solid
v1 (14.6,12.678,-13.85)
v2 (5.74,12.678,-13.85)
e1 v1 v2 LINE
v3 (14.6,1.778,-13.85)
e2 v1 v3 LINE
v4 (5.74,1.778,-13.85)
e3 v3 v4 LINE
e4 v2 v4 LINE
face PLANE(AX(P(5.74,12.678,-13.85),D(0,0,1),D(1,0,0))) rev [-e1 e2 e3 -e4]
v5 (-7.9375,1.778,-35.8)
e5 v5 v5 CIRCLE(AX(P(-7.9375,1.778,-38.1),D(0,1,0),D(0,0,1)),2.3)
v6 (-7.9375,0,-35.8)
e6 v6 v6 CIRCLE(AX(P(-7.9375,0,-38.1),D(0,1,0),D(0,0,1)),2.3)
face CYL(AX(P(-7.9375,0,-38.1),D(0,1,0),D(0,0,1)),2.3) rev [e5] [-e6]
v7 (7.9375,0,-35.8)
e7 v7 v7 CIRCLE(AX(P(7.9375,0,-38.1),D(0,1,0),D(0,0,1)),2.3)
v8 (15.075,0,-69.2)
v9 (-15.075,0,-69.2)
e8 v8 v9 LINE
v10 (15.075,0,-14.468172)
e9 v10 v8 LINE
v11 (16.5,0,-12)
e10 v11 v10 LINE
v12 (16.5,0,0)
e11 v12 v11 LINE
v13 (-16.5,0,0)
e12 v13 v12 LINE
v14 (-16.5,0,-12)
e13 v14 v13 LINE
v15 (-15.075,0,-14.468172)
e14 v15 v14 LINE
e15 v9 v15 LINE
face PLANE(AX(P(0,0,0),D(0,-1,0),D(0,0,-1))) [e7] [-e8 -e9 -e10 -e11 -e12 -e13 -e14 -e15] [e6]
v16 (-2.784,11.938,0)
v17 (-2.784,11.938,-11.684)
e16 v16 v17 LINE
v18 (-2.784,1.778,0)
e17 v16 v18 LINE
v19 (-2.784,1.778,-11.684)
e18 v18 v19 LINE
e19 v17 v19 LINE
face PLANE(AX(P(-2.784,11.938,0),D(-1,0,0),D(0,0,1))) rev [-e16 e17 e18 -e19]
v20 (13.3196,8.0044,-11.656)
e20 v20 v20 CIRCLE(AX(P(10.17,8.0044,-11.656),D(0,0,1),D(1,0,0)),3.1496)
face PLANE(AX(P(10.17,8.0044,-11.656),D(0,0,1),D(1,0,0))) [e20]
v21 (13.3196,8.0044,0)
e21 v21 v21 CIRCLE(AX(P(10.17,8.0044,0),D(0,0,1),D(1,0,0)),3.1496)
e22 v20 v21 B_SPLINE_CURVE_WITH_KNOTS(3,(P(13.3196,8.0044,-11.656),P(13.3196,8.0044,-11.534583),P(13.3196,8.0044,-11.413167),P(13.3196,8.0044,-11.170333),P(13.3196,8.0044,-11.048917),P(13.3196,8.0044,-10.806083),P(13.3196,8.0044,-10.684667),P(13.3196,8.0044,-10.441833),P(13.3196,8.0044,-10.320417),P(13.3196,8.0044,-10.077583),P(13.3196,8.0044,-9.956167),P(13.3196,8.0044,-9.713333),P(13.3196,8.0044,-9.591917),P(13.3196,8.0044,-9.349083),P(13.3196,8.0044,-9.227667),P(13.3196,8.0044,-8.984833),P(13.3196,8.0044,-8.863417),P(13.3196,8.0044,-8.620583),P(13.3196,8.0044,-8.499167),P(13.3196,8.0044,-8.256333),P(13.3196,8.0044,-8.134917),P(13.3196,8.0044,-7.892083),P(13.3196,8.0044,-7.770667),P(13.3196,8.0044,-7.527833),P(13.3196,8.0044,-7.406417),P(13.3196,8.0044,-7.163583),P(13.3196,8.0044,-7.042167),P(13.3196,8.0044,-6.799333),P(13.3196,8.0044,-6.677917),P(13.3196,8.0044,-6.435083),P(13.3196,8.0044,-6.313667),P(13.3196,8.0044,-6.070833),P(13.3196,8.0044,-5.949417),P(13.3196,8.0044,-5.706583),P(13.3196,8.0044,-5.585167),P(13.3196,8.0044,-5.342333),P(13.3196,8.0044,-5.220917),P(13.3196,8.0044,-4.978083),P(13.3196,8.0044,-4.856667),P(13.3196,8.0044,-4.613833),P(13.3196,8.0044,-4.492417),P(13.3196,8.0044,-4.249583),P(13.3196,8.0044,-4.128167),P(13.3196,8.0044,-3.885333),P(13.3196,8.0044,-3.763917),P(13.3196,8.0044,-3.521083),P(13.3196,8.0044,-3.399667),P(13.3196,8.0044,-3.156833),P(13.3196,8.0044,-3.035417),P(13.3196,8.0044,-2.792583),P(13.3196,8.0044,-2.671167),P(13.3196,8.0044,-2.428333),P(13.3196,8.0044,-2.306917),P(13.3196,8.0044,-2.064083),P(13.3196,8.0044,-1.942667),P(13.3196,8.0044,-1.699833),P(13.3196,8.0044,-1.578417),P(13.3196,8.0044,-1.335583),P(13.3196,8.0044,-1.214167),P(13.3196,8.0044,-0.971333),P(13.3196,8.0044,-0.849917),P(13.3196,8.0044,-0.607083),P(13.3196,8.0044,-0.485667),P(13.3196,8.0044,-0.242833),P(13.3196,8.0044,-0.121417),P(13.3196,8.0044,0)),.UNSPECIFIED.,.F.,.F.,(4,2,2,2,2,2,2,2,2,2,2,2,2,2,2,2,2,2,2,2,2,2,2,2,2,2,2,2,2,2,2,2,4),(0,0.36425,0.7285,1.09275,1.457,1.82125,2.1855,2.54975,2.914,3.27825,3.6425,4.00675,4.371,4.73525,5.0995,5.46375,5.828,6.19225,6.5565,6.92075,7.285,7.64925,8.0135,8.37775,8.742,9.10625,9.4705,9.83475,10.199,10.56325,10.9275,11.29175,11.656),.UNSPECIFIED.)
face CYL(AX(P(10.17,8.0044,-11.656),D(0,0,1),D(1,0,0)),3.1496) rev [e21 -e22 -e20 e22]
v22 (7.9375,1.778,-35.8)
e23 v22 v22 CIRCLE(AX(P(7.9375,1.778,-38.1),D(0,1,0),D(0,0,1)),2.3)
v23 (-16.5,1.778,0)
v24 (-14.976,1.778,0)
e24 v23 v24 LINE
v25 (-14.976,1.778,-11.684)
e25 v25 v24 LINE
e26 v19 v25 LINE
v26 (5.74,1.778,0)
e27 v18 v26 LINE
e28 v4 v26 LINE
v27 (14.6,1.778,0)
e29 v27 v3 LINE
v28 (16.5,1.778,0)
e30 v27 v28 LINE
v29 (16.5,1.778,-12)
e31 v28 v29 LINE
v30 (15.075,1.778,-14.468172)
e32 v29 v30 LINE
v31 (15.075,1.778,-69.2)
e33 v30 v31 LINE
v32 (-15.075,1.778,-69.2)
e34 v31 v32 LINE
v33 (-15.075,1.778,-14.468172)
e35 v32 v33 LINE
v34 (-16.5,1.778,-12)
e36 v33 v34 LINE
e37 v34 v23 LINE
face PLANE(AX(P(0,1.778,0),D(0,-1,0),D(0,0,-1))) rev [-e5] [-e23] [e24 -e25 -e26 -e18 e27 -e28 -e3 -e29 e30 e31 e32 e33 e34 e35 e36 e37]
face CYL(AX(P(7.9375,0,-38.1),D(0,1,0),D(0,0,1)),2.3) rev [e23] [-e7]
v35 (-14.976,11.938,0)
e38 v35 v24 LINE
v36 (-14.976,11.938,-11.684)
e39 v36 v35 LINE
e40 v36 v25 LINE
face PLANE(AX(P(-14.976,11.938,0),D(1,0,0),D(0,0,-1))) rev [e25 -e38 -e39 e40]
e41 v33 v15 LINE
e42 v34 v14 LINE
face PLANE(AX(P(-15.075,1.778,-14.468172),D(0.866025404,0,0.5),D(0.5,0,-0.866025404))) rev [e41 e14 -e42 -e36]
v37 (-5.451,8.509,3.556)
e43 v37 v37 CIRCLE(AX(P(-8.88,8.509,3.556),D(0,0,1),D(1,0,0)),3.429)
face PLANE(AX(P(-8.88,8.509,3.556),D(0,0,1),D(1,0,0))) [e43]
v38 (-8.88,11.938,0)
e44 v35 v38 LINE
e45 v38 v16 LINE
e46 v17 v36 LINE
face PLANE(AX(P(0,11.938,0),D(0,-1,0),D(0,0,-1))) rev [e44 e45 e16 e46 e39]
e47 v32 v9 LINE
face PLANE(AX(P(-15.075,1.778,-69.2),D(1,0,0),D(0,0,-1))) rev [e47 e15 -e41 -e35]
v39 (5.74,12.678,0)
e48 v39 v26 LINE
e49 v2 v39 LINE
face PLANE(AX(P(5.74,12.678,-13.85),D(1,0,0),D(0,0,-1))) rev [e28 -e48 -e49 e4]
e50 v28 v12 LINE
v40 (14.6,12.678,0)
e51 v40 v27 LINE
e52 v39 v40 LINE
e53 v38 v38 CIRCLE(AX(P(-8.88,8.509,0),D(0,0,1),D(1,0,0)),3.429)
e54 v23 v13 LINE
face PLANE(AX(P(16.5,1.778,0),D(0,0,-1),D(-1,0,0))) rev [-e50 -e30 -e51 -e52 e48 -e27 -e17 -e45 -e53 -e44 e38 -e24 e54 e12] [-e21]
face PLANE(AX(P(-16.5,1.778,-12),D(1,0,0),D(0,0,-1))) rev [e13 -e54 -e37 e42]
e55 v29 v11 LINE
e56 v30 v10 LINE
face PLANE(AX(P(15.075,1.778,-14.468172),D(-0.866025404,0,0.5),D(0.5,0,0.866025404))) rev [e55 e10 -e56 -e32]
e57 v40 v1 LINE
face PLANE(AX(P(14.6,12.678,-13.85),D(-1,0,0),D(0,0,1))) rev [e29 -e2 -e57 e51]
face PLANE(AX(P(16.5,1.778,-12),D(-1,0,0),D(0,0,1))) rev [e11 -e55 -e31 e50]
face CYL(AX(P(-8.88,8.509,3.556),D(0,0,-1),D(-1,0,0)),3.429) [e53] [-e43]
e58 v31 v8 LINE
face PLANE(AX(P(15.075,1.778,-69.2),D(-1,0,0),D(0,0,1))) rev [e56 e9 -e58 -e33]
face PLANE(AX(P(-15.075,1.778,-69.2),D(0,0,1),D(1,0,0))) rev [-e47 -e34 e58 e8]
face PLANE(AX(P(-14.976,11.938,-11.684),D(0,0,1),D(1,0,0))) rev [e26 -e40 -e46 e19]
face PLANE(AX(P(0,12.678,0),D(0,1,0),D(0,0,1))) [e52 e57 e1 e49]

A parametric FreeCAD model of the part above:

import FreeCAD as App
import Part
import Sketcher
from FreeCAD import Vector
Q = App.Units.Quantity


def add_polygon(sketch, points):
    """Adds a closed chain of lines whose ends are joined by coincident constraints."""
    first, n = sketch.GeometryCount, len(points)
    for a, b in zip(points, points[1:] + points[:1]):
        sketch.addGeometry(Part.LineSegment(App.Vector(*a, 0), App.Vector(*b, 0)), False)
    for i in range(n):
        sketch.addConstraint(Sketcher.Constraint("Coincident", first + i, 2, first + (i + 1) % n, 1))

doc = App.newDocument("Part")
body = doc.addObject("PartDesign::Body", "Body")

# Sketch on XZ plane
sketch1 = body.newObject("Sketcher::SketchObject", "Sketch")
sketch1.AttachmentSupport = (doc.getObject("XZ_Plane"), [""])
sketch1.MapMode = "FlatFace"
add_polygon(sketch1, [(15.075, -69.2), (-15.075, -69.2), (-15.075, -14.468172), (-16.5, -12), (-16.5, 0), (16.5, 0), (16.5, -12), (15.075, -14.468172)])  # lines 0-7
sketch1.addConstraint([
    Sketcher.Constraint("Horizontal", 0),
    Sketcher.Constraint("Vertical", 1),
    Sketcher.Constraint("Vertical", 3),
    Sketcher.Constraint("Horizontal", 4),
    Sketcher.Constraint("Vertical", 5),
    Sketcher.Constraint("Vertical", 7),
    Sketcher.Constraint("Symmetric", 3, 2, 4, 2, -1, 1),
    Sketcher.Constraint("Symmetric", 1, 2, 6, 2, -2),
    Sketcher.Constraint("Horizontal", 2, 2, 5, 2),
    Sketcher.Constraint("Angle", 2, Q("120 deg")),
    Sketcher.Constraint("DistanceX", 0, 2, 0, 1, 30.15),
    Sketcher.Constraint("DistanceX", 4, 1, 4, 2, 33.0),
    Sketcher.Constraint("DistanceY", 3, 1, 3, 2, 12.0),
    Sketcher.Constraint("DistanceY", 0, 2, -1, 1, 69.2),
])
pad1 = body.newObject("PartDesign::Pad", "Pad")
pad1.Profile = sketch1
pad1.Length = Q("0.07 in")
pad1.Reversed = True

# Sketch on XZ plane
sketch2 = body.newObject("Sketcher::SketchObject", "Sketch001")
sketch2.AttachmentSupport = (doc.getObject("XZ_Plane"), [""])
sketch2.MapMode = "FlatFace"
sketch2.AttachmentOffset = App.Placement(Vector(0, 0, -0.07 * 25.4), App.Rotation())
add_polygon(sketch2, [(5.74, -13.85), (5.74, 0), (14.6, 0), (14.6, -13.85)])  # lines 0-3
sketch2.addConstraint([
    Sketcher.Constraint("Vertical", 0),
    Sketcher.Constraint("Horizontal", 1),
    Sketcher.Constraint("Vertical", 2),
    Sketcher.Constraint("Horizontal", 3),
    Sketcher.Constraint("PointOnObject", 0, 2, -1),
    Sketcher.Constraint("DistanceX", 1, 1, 1, 2, 8.86),
    Sketcher.Constraint("DistanceY", 0, 1, 0, 2, 13.85),
    Sketcher.Constraint("DistanceX", -1, 1, 0, 2, 5.74),
])
pad2 = body.newObject("PartDesign::Pad", "Pad001")
pad2.Profile = sketch2
pad2.Length = 10.9
pad2.Reversed = True

# Sketch on XZ plane
sketch3 = body.newObject("Sketcher::SketchObject", "Sketch002")
sketch3.AttachmentSupport = (doc.getObject("XZ_Plane"), [""])
sketch3.MapMode = "FlatFace"
sketch3.AttachmentOffset = App.Placement(Vector(0, 0, -0.07 * 25.4), App.Rotation())
sketch3.addGeometry([
    Part.Circle(Vector(-7.9375, -38.1, 0), Vector(0, 0, 1), 2.3),
    Part.Circle(Vector(7.9375, -38.1, 0), Vector(0, 0, 1), 2.3),
], False)
sketch3.addConstraint([
    Sketcher.Constraint("Equal", 0, 1),
    Sketcher.Constraint("Symmetric", 0, 3, 1, 3, -2),
    Sketcher.Constraint("DistanceY", 0, 3, -1, 1, Q("1.5 in")),
    Sketcher.Constraint("Diameter", 0, 4.6),
    Sketcher.Constraint("DistanceX", 0, 3, -1, 1, Q("0.3125 in")),
])
pocket1 = body.newObject("PartDesign::Pocket", "Pocket")
pocket1.Profile = sketch3
pocket1.Type = "ThroughAll"
pocket1.Reversed = True

# Sketch on XZ plane
sketch4 = body.newObject("Sketcher::SketchObject", "Sketch003")
sketch4.AttachmentSupport = (doc.getObject("XZ_Plane"), [""])
sketch4.MapMode = "FlatFace"
sketch4.AttachmentOffset = App.Placement(Vector(0, 0, -0.07 * 25.4), App.Rotation())
add_polygon(sketch4, [(-14.976, -11.684), (-14.976, 0), (-2.784, 0), (-2.784, -11.684)])  # lines 0-3
sketch4.addConstraint([
    Sketcher.Constraint("Vertical", 0),
    Sketcher.Constraint("Horizontal", 1),
    Sketcher.Constraint("Vertical", 2),
    Sketcher.Constraint("Horizontal", 3),
    Sketcher.Constraint("PointOnObject", 0, 2, -1),
    Sketcher.Constraint("DistanceX", 1, 1, 1, 2, Q("0.48 in")),
    Sketcher.Constraint("DistanceY", 0, 1, 0, 2, Q("0.46 in")),
    Sketcher.Constraint("DistanceX", 0, 2, -1, 1, 14.976),
])
pad3 = body.newObject("PartDesign::Pad", "Pad002")
pad3.Profile = sketch4
pad3.Length = Q("0.4 in")
pad3.Reversed = True

# Sketch on XY plane
sketch5 = body.newObject("Sketcher::SketchObject", "Sketch004")
sketch5.AttachmentSupport = (doc.getObject("XY_Plane"), [""])
sketch5.MapMode = "FlatFace"
sketch5.addGeometry(Part.Circle(Vector(-8.88, 8.509, 0), Vector(0, 0, 1), 3.429), False)
sketch5.addConstraint([
    Sketcher.Constraint("Diameter", 0, Q("0.27 in")),
    Sketcher.Constraint("DistanceY", -1, 1, 0, 3, Q("0.335 in")),
    Sketcher.Constraint("DistanceX", 0, 3, -1, 1, 8.88),
])
pad4 = body.newObject("PartDesign::Pad", "Pad003")
pad4.Profile = sketch5
pad4.Length = Q("0.14 in")

# Sketch on XY plane
sketch6 = body.newObject("Sketcher::SketchObject", "Sketch005")
sketch6.AttachmentSupport = (doc.getObject("XY_Plane"), [""])
sketch6.MapMode = "FlatFace"
sketch6.addGeometry(Part.Circle(Vector(10.17, 8.0044, 0), Vector(0, 0, 1), 3.1496), False)
sketch6.addConstraint([
    Sketcher.Constraint("Diameter", 0, Q("0.248 in")),
    Sketcher.Constraint("DistanceX", -1, 1, 0, 3, 10.17),
    Sketcher.Constraint("DistanceY", -1, 1, 0, 3, 8.0044),
])
pocket2 = body.newObject("PartDesign::Pocket", "Pocket001")
pocket2.Profile = sketch6
pocket2.Length = 11.656

doc.recompute()
